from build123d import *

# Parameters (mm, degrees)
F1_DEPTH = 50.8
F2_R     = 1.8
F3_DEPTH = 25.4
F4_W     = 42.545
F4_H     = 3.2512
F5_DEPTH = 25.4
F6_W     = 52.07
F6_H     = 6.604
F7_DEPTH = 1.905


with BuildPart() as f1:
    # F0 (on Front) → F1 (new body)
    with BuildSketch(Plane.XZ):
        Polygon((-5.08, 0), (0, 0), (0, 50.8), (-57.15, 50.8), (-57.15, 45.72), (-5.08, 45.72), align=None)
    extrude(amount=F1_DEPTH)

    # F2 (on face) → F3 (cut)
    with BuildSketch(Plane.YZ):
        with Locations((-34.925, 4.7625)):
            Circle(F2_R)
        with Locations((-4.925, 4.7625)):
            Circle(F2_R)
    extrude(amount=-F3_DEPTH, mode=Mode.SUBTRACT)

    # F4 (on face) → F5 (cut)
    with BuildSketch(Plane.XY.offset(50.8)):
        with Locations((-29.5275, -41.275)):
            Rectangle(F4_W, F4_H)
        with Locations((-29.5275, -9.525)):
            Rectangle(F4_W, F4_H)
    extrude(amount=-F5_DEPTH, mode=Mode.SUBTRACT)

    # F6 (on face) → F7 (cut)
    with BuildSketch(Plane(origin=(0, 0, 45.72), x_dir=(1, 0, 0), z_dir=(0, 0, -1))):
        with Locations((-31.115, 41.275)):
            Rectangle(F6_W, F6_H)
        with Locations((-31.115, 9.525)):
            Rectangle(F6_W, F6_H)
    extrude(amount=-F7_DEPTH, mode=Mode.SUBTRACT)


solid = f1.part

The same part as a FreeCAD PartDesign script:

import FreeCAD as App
import Part
import Sketcher
Q = App.Units.Quantity

doc = App.newDocument("Part")
body = doc.addObject("PartDesign::Body", "Body")

# Sketch on XZ plane
sketch1 = body.newObject("Sketcher::SketchObject", "Sketch")
sketch1.AttachmentSupport = (doc.getObject("XZ_Plane"), [""])
sketch1.MapMode = "FlatFace"
sketch1.addGeometry([
    Part.LineSegment(App.Vector(-5, 0, 0), App.Vector(0, 0, 0)),  # 0
    Part.LineSegment(App.Vector(0, 0, 0), App.Vector(0, 51, 0)),  # 1
    Part.LineSegment(App.Vector(0, 51, 0), App.Vector(-57, 51, 0)),  # 2
    Part.LineSegment(App.Vector(-57, 51, 0), App.Vector(-57, 46, 0)),  # 3
    Part.LineSegment(App.Vector(-57, 46, 0), App.Vector(-5, 46, 0)),  # 4
    Part.LineSegment(App.Vector(-5, 46, 0), App.Vector(-5, 0, 0)),  # 5
], False)
sketch1.addConstraint([
    Sketcher.Constraint("Coincident", 0, 2, 1, 1),
    Sketcher.Constraint("Coincident", 1, 2, 2, 1),
    Sketcher.Constraint("Coincident", 2, 2, 3, 1),
    Sketcher.Constraint("Coincident", 3, 2, 4, 1),
    Sketcher.Constraint("Coincident", 4, 2, 5, 1),
    Sketcher.Constraint("Coincident", 5, 2, 0, 1),
    Sketcher.Constraint("Horizontal", 0),
    Sketcher.Constraint("Vertical", 1),
    Sketcher.Constraint("Horizontal", 2),
    Sketcher.Constraint("Vertical", 3),
    Sketcher.Constraint("Horizontal", 4),
    Sketcher.Constraint("Vertical", 5),
    Sketcher.Constraint("Coincident", 0, 2, -1, 1),
    Sketcher.Constraint("Equal", 0, 3),
    Sketcher.Constraint("DistanceY", 1, 1, 1, 2, Q("2 in")),
    Sketcher.Constraint("DistanceX", 0, 1, 0, 2, Q("0.2 in")),
    Sketcher.Constraint("DistanceX", 2, 2, 2, 1, Q("2.25 in")),
])
pad1 = body.newObject("PartDesign::Pad", "Pad")
pad1.Profile = sketch1
pad1.Length = Q("2 in")

# Sketch on YZ plane
sketch2 = body.newObject("Sketcher::SketchObject", "Sketch001")
sketch2.AttachmentSupport = (doc.getObject("YZ_Plane"), [""])
sketch2.MapMode = "FlatFace"
sketch2.addGeometry([
    Part.Circle(App.Vector(-34.9, 4.8, 0), App.Vector(0, 0, 1), 1.8),
    Part.Circle(App.Vector(-4.9, 4.8, 0), App.Vector(0, 0, 1), 1.8),
], False)
sketch2.addConstraint([
    Sketcher.Constraint("Equal", 0, 1),
    Sketcher.Constraint("Horizontal", 0, 3, 1, 3),
    Sketcher.Constraint("Diameter", 0, 3.6),
    Sketcher.Constraint("DistanceX", 0, 3, -1, 1, Q("1.375 in")),
    Sketcher.Constraint("DistanceY", -1, 1, 0, 3, Q("0.1875 in")),
    Sketcher.Constraint("DistanceX", 1, 3, -1, 1, 4.925),
])
pocket1 = body.newObject("PartDesign::Pocket", "Pocket")
pocket1.Profile = sketch2
pocket1.Length = Q("1 in")

# Sketch on XY plane
sketch3 = body.newObject("Sketcher::SketchObject", "Sketch002")
sketch3.AttachmentSupport = (doc.getObject("XY_Plane"), [""])
sketch3.MapMode = "FlatFace"
sketch3.AttachmentOffset = App.Placement(App.Vector(0, 0, 2 * 25.4), App.Rotation())
sketch3.addGeometry([
    Part.LineSegment(App.Vector(-50.8, -39.6, 0), App.Vector(-50.8, -42.9, 0)),  # 0
    Part.LineSegment(App.Vector(-50.8, -42.9, 0), App.Vector(-8.3, -42.9, 0)),  # 1
    Part.LineSegment(App.Vector(-8.3, -42.9, 0), App.Vector(-8.3, -39.6, 0)),  # 2
    Part.LineSegment(App.Vector(-8.3, -39.6, 0), App.Vector(-50.8, -39.6, 0)),  # 3
    Part.LineSegment(App.Vector(-50.8, -7.9, 0), App.Vector(-50.8, -11.2, 0)),  # 4
    Part.LineSegment(App.Vector(-50.8, -11.2, 0), App.Vector(-8.3, -11.2, 0)),  # 5
    Part.LineSegment(App.Vector(-8.3, -11.2, 0), App.Vector(-8.3, -7.9, 0)),  # 6
    Part.LineSegment(App.Vector(-8.3, -7.9, 0), App.Vector(-50.8, -7.9, 0)),  # 7
], False)
sketch3.addConstraint([
    Sketcher.Constraint("Coincident", 0, 2, 1, 1),
    Sketcher.Constraint("Coincident", 1, 2, 2, 1),
    Sketcher.Constraint("Coincident", 2, 2, 3, 1),
    Sketcher.Constraint("Coincident", 3, 2, 0, 1),
    Sketcher.Constraint("Coincident", 4, 2, 5, 1),
    Sketcher.Constraint("Coincident", 5, 2, 6, 1),
    Sketcher.Constraint("Coincident", 6, 2, 7, 1),
    Sketcher.Constraint("Coincident", 7, 2, 4, 1),
    Sketcher.Constraint("Vertical", 0),
    Sketcher.Constraint("Horizontal", 1),
    Sketcher.Constraint("Vertical", 2),
    Sketcher.Constraint("Horizontal", 3),
    Sketcher.Constraint("Vertical", 4),
    Sketcher.Constraint("Horizontal", 5),
    Sketcher.Constraint("Vertical", 6),
    Sketcher.Constraint("Horizontal", 7),
    Sketcher.Constraint("Vertical", 3, 2, 4, 2),
    Sketcher.Constraint("Vertical", 2, 2, 5, 2),
    Sketcher.Constraint("Equal", 2, 4),
    Sketcher.Constraint("DistanceX", 0, 2, -1, 1, Q("2 in")),
    Sketcher.Constraint("DistanceX", 1, 1, 1, 2, Q("1.675 in")),
    Sketcher.Constraint("DistanceY", 0, 2, 0, 1, Q("0.128 in")),
    Sketcher.Constraint("DistanceY", 0, 2, 4, 2, Q("1.25 in")),
    Sketcher.Constraint("DistanceY", 0, 2, -1, 1, Q("1.689 in")),
])
pocket2 = body.newObject("PartDesign::Pocket", "Pocket001")
pocket2.Profile = sketch3
pocket2.Length = Q("1 in")

# Sketch on XY plane
sketch4 = body.newObject("Sketcher::SketchObject", "Sketch003")
sketch4.AttachmentSupport = (doc.getObject("XY_Plane"), [""])
sketch4.MapMode = "FlatFace"
sketch4.AttachmentOffset = App.Placement(App.Vector(0, 0, 1.8 * 25.4), App.Rotation())
sketch4.addGeometry([
    Part.LineSegment(App.Vector(-57, -45, 0), App.Vector(-57, -38, 0)),  # 0
    Part.LineSegment(App.Vector(-57, -38, 0), App.Vector(-5, -38, 0)),  # 1
    Part.LineSegment(App.Vector(-5, -38, 0), App.Vector(-5, -45, 0)),  # 2
    Part.LineSegment(App.Vector(-5, -45, 0), App.Vector(-57, -45, 0)),  # 3
    Part.LineSegment(App.Vector(-57, -13, 0), App.Vector(-57, -6, 0)),  # 4
    Part.LineSegment(App.Vector(-57, -6, 0), App.Vector(-5, -6, 0)),  # 5
    Part.LineSegment(App.Vector(-5, -6, 0), App.Vector(-5, -13, 0)),  # 6
    Part.LineSegment(App.Vector(-5, -13, 0), App.Vector(-57, -13, 0)),  # 7
], False)
sketch4.addConstraint([
    Sketcher.Constraint("Coincident", 0, 2, 1, 1),
    Sketcher.Constraint("Coincident", 1, 2, 2, 1),
    Sketcher.Constraint("Coincident", 2, 2, 3, 1),
    Sketcher.Constraint("Coincident", 3, 2, 0, 1),
    Sketcher.Constraint("Coincident", 4, 2, 5, 1),
    Sketcher.Constraint("Coincident", 5, 2, 6, 1),
    Sketcher.Constraint("Coincident", 6, 2, 7, 1),
    Sketcher.Constraint("Coincident", 7, 2, 4, 1),
    Sketcher.Constraint("Vertical", 0),
    Sketcher.Constraint("Horizontal", 1),
    Sketcher.Constraint("Vertical", 2),
    Sketcher.Constraint("Horizontal", 3),
    Sketcher.Constraint("Vertical", 4),
    Sketcher.Constraint("Horizontal", 5),
    Sketcher.Constraint("Vertical", 6),
    Sketcher.Constraint("Horizontal", 7),
    Sketcher.Constraint("Vertical", 3, 2, 4, 2),
    Sketcher.Constraint("Vertical", 2, 2, 5, 2),
    Sketcher.Constraint("Equal", 2, 4),
    Sketcher.Constraint("DistanceX", 1, 1, 1, 2, Q("2.05 in")),
    Sketcher.Constraint("DistanceY", 0, 1, 0, 2, Q("0.26 in")),
    Sketcher.Constraint("DistanceX", 1, 2, -1, 1, Q("0.2 in")),
    Sketcher.Constraint("DistanceY", 0, 2, 4, 2, Q("1.25 in")),
    Sketcher.Constraint("DistanceY", 0, 2, -1, 1, Q("1.495 in")),
])
pocket3 = body.newObject("PartDesign::Pocket", "Pocket002")
pocket3.Profile = sketch4
pocket3.Length = Q("0.075 in")
pocket3.Reversed = True

doc.recompute()
